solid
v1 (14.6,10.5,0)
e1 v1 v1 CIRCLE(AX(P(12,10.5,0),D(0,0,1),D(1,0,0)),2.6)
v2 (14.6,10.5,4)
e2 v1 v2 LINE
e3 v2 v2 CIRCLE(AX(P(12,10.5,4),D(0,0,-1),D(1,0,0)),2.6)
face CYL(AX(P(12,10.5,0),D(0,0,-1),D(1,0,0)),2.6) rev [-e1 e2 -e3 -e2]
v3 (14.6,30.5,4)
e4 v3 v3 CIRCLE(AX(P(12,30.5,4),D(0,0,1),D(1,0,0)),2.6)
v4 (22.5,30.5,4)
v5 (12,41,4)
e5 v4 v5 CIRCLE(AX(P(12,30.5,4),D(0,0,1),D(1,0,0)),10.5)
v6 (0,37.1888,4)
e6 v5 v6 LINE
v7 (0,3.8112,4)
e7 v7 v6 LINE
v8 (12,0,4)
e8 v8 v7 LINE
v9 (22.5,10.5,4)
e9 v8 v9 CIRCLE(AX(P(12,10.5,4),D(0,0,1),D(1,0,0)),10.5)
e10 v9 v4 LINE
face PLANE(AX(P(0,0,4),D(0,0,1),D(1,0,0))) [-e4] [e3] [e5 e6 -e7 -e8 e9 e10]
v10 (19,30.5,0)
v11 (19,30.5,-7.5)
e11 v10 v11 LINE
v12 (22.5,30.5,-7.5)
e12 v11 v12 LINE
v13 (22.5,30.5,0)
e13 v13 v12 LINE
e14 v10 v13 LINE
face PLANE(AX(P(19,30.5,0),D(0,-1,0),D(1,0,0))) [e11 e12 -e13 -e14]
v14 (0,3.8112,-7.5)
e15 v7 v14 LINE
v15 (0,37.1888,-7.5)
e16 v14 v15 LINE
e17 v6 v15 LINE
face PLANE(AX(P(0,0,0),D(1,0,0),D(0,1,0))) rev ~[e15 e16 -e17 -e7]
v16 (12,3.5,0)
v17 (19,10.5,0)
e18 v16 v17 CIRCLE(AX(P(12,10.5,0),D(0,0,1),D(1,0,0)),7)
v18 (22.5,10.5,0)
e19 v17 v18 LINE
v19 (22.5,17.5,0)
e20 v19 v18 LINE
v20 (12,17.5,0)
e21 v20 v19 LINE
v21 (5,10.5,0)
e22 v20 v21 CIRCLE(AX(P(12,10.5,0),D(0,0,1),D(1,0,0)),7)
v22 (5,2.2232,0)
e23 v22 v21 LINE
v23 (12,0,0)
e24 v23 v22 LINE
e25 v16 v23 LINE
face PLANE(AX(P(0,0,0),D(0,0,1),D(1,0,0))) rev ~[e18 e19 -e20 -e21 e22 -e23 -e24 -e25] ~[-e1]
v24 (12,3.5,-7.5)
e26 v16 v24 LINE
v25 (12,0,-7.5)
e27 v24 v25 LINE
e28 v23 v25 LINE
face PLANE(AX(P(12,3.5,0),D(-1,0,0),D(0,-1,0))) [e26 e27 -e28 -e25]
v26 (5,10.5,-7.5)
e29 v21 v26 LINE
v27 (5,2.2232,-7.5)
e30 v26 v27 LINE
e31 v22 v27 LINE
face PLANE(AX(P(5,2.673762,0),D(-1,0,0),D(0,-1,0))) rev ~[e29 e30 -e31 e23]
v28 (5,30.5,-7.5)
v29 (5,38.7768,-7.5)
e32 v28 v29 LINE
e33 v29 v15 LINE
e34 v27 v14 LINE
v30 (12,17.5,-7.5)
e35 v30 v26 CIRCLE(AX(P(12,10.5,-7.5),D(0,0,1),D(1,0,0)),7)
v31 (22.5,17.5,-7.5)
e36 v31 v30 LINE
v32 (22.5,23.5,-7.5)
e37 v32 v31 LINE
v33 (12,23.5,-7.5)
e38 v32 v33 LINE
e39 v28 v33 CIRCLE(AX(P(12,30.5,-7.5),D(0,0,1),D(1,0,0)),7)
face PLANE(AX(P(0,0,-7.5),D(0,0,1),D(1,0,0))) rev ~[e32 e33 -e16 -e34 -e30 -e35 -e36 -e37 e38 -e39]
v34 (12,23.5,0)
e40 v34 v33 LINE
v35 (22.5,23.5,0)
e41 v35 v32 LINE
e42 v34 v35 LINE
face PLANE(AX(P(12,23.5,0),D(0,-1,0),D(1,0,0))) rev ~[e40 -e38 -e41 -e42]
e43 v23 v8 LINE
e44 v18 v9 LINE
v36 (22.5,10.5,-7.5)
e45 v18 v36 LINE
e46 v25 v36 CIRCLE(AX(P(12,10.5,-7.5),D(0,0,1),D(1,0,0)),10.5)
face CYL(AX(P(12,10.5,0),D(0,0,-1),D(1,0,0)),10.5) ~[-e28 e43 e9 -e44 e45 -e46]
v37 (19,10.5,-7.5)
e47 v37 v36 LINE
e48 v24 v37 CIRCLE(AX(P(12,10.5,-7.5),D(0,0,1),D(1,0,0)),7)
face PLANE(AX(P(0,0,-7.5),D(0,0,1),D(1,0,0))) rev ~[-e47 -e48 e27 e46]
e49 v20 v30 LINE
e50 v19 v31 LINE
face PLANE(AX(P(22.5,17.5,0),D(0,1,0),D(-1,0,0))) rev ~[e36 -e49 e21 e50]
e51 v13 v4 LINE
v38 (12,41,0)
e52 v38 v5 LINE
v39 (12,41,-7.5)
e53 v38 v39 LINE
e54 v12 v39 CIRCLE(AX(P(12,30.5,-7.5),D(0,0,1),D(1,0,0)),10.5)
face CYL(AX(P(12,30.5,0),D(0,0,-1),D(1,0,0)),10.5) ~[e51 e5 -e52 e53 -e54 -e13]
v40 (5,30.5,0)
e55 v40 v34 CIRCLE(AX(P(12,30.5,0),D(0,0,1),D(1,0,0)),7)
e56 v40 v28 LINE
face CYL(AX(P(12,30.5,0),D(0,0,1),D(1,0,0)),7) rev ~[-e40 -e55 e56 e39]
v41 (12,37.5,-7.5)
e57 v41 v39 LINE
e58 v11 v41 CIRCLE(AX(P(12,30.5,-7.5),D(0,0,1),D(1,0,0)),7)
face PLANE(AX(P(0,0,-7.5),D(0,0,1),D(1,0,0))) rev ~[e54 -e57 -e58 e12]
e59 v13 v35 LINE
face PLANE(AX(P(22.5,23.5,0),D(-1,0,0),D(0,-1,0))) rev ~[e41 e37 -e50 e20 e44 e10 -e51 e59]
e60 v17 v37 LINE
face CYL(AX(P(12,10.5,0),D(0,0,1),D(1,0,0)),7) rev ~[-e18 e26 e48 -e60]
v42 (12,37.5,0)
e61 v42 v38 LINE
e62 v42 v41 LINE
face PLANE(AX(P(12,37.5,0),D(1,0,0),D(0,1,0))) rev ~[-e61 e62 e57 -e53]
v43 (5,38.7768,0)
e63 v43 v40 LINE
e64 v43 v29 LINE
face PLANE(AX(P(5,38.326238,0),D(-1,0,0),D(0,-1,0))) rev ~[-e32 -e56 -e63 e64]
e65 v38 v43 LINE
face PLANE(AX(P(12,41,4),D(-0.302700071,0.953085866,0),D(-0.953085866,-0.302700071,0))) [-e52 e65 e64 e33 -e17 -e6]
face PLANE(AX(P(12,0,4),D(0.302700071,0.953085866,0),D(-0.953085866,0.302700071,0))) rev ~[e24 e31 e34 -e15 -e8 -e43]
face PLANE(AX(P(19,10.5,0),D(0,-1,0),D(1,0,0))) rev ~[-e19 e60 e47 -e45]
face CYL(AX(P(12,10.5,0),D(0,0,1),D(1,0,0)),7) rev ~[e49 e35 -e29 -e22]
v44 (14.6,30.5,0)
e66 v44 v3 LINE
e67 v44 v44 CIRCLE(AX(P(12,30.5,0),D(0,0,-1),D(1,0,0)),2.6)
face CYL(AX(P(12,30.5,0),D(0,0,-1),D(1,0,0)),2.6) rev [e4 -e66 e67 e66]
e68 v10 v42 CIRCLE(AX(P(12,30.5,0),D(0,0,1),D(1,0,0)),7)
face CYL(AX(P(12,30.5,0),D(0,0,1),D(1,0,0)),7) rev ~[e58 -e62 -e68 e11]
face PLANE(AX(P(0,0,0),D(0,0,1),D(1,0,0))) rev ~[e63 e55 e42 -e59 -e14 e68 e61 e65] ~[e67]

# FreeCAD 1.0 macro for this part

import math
import FreeCAD as App
import Part
import Sketcher
from FreeCAD import Vector
Q = App.Units.Quantity


def add_polygon(sketch, points):
    """Adds a closed chain of lines whose ends are joined by coincident constraints."""
    first, n = sketch.GeometryCount, len(points)
    for a, b in zip(points, points[1:] + points[:1]):
        sketch.addGeometry(Part.LineSegment(App.Vector(*a, 0), App.Vector(*b, 0)), False)
    for i in range(n):
        sketch.addConstraint(Sketcher.Constraint("Coincident", first + i, 2, first + (i + 1) % n, 1))

doc = App.newDocument("Part")
body = doc.addObject("PartDesign::Body", "Body")
body.AllowCompound = True

# Sketch on XY plane
sketch1 = body.newObject("Sketcher::SketchObject", "Sketch")
sketch1.AttachmentSupport = (doc.getObject("XY_Plane"), [""])
sketch1.MapMode = "FlatFace"
sketch1.addGeometry([
    Part.ArcOfCircle(Part.Circle(Vector(12, 30.5, 0), Vector(0, 0, 1), 7), math.radians(0), math.radians(90)),  # 0
    Part.LineSegment(Vector(19, 30.5, 0), Vector(22.5, 30.5, 0)),  # 1
    Part.ArcOfCircle(Part.Circle(Vector(12, 30.5, 0), Vector(0, 0, 1), 10.5), math.radians(0), math.radians(90)),  # 2
    Part.LineSegment(Vector(12, 41, 0), Vector(12, 37.5, 0)),  # 3
    Part.ArcOfCircle(Part.Circle(Vector(12, 30.5, 0), Vector(0, 0, 1), 7), math.radians(180), math.radians(270)),  # 4
    Part.LineSegment(Vector(5, 30.5, 0), Vector(5, 41, 0)),  # 5
    Part.LineSegment(Vector(5, 41, 0), Vector(0, 41, 0)),  # 6
    Part.LineSegment(Vector(0, 41, 0), Vector(0, 0, 0)),  # 7
    Part.LineSegment(Vector(0, 0, 0), Vector(5, 0, 0)),  # 8
    Part.LineSegment(Vector(5, 0, 0), Vector(5, 10.5, 0)),  # 9
    Part.ArcOfCircle(Part.Circle(Vector(12, 10.5, 0), Vector(0, 0, 1), 7), math.radians(90), math.radians(180)),  # 10
    Part.LineSegment(Vector(12, 17.5, 0), Vector(22.5, 17.5, 0)),  # 11
    Part.LineSegment(Vector(22.5, 17.5, 0), Vector(22.5, 23.5, 0)),  # 12
    Part.LineSegment(Vector(22.5, 23.5, 0), Vector(12, 23.5, 0)),  # 13
    Part.ArcOfCircle(Part.Circle(Vector(12, 10.5, 0), Vector(0, 0, 1), 10.5), math.radians(-90), math.radians(0)),  # 14
    Part.LineSegment(Vector(22.5, 10.5, 0), Vector(19, 10.5, 0)),  # 15
    Part.ArcOfCircle(Part.Circle(Vector(12, 10.5, 0), Vector(0, 0, 1), 7), math.radians(-90), math.radians(0)),  # 16
    Part.LineSegment(Vector(12, 3.5, 0), Vector(12, 0, 0)),  # 17
], False)
sketch1.addConstraint([
    Sketcher.Constraint("Coincident", 0, 1, 1, 1),
    Sketcher.Constraint("Coincident", 1, 2, 2, 1),
    Sketcher.Constraint("Coincident", 2, 2, 3, 1),
    Sketcher.Constraint("Coincident", 3, 2, 0, 2),
    Sketcher.Constraint("Tangent", 4, 1, 5, 1),
    Sketcher.Constraint("Coincident", 5, 2, 6, 1),
    Sketcher.Constraint("Coincident", 6, 2, 7, 1),
    Sketcher.Constraint("Coincident", 7, 2, 8, 1),
    Sketcher.Constraint("Coincident", 8, 2, 9, 1),
    Sketcher.Constraint("Tangent", 9, 2, 10, 2),
    Sketcher.Constraint("Tangent", 10, 1, 11, 1),
    Sketcher.Constraint("Coincident", 11, 2, 12, 1),
    Sketcher.Constraint("Coincident", 12, 2, 13, 1),
    Sketcher.Constraint("Tangent", 13, 2, 4, 2),
    Sketcher.Constraint("Coincident", 14, 2, 15, 1),
    Sketcher.Constraint("Coincident", 15, 2, 16, 2),
    Sketcher.Constraint("Coincident", 16, 1, 17, 1),
    Sketcher.Constraint("Coincident", 17, 2, 14, 1),
    Sketcher.Constraint("Horizontal", 1),
    Sketcher.Constraint("Vertical", 3),
    Sketcher.Constraint("Vertical", 5),
    Sketcher.Constraint("Horizontal", 6),
    Sketcher.Constraint("Vertical", 7),
    Sketcher.Constraint("Horizontal", 8),
    Sketcher.Constraint("Vertical", 9),
    Sketcher.Constraint("Horizontal", 11),
    Sketcher.Constraint("Vertical", 12),
    Sketcher.Constraint("Horizontal", 13),
    Sketcher.Constraint("Horizontal", 15),
    Sketcher.Constraint("Vertical", 17),
    Sketcher.Constraint("Coincident", 7, 2, -1, 1),
    Sketcher.Constraint("Coincident", 2, 3, 0, 3),
    Sketcher.Constraint("Coincident", 4, 3, 0, 3),
    Sketcher.Constraint("Coincident", 14, 3, 10, 3),
    Sketcher.Constraint("Coincident", 16, 3, 10, 3),
    Sketcher.Constraint("Equal", 0, 4),
    Sketcher.Constraint("Equal", 4, 10),
    Sketcher.Constraint("Equal", 2, 14),
    Sketcher.Constraint("Equal", 10, 16),
    Sketcher.Constraint("PointOnObject", 17, 2, -1),
    Sketcher.Constraint("Horizontal", 4, 3, 0, 1),
    Sketcher.Constraint("Horizontal", 2, 2, 5, 2),
    Sketcher.Constraint("Horizontal", 9, 2, 14, 2),
    Sketcher.Constraint("Vertical", 4, 3, 10, 3),
    Sketcher.Constraint("Vertical", 16, 3, 2, 2),
    Sketcher.Constraint("Vertical", 1, 2, 11, 2),
    Sketcher.Constraint("Vertical", 13, 2, 16, 1),
    Sketcher.Constraint("Radius", 0, Q("7 mm")),
    Sketcher.Constraint("DistanceX", 6, 2, 6, 1, Q("5 mm")),
    Sketcher.Constraint("DistanceX", 1, 1, 1, 2, Q("3.5 mm")),
    Sketcher.Constraint("DistanceY", 10, 3, 0, 3, Q("20 mm")),
])
pad1 = body.newObject("PartDesign::Pad", "Pad")
pad1.Profile = sketch1
pad1.Length = 7.5
pad1.Reversed = True

# Sketch on XY plane
sketch2 = body.newObject("Sketcher::SketchObject", "Sketch001")
sketch2.AttachmentSupport = (doc.getObject("XY_Plane"), [""])
sketch2.MapMode = "FlatFace"
sketch2.addGeometry([
    Part.ArcOfCircle(Part.Circle(Vector(12, 30.5, 0), Vector(0, 0, 1), 10.5), math.radians(0), math.radians(90)),  # 0
    Part.LineSegment(Vector(12, 41, 0), Vector(0, 41, 0)),  # 1
    Part.LineSegment(Vector(0, 41, 0), Vector(0, 0, 0)),  # 2
    Part.LineSegment(Vector(0, 0, 0), Vector(12, 0, 0)),  # 3
    Part.ArcOfCircle(Part.Circle(Vector(12, 10.5, 0), Vector(0, 0, 1), 10.5), math.radians(-90), math.radians(0)),  # 4
    Part.LineSegment(Vector(22.5, 10.5, 0), Vector(22.5, 30.5, 0)),  # 5
    Part.Circle(Vector(12, 30.5, 0), Vector(0, 0, 1), 2.6),  # 6
    Part.Circle(Vector(12, 10.5, 0), Vector(0, 0, 1), 2.6),  # 7
], False)
sketch2.addConstraint([
    Sketcher.Constraint("Tangent", 0, 2, 1, 1),
    Sketcher.Constraint("Coincident", 1, 2, 2, 1),
    Sketcher.Constraint("Coincident", 2, 2, 3, 1),
    Sketcher.Constraint("Tangent", 3, 2, 4, 1),
    Sketcher.Constraint("Tangent", 4, 2, 5, 1),
    Sketcher.Constraint("Tangent", 5, 2, 0, 1),
    Sketcher.Constraint("Horizontal", 1),
    Sketcher.Constraint("Vertical", 2),
    Sketcher.Constraint("Horizontal", 3),
    Sketcher.Constraint("Vertical", 5),
    Sketcher.Constraint("Coincident", 2, 2, -1, 1),
    Sketcher.Constraint("Coincident", 6, 3, 0, 3),
    Sketcher.Constraint("Coincident", 7, 3, 4, 3),
    Sketcher.Constraint("Equal", 0, 4),
    Sketcher.Constraint("Equal", 6, 7),
    Sketcher.Constraint("Diameter", 6, Q("5.2 mm")),
    Sketcher.Constraint("DistanceY", 5, 1, 5, 2, Q("20 mm")),
    Sketcher.Constraint("Radius", 0, Q("10.5 mm")),
    Sketcher.Constraint("DistanceX", 1, 2, 1, 1, Q("12 mm")),
])
pad2 = body.newObject("PartDesign::Pad", "Pad001")
pad2.Profile = sketch2
pad2.Length = 4

# Sketch on XY plane
sketch3 = body.newObject("Sketcher::SketchObject", "Sketch002")
sketch3.AttachmentSupport = (doc.getObject("XY_Plane"), [""])
sketch3.MapMode = "FlatFace"
sketch3.AttachmentOffset = App.Placement(Vector(0, 0, 4), App.Rotation())
add_polygon(sketch3, [(0, 37.2), (12, 41), (0, 41)])  # lines 0-2
add_polygon(sketch3, [(12, 0), (0, 3.8), (0, 0)])  # lines 3-5
sketch3.addConstraint([
    Sketcher.Constraint("Horizontal", 1),
    Sketcher.Constraint("Vertical", 2),
    Sketcher.Constraint("Vertical", 4),
    Sketcher.Constraint("Horizontal", 5),
    Sketcher.Constraint("Coincident", 4, 2, -1, 1),
    Sketcher.Constraint("PointOnObject", 1, 2, -2),
    Sketcher.Constraint("Vertical", 0, 2, 5, 2),
    Sketcher.Constraint("Equal", 2, 4),
    Sketcher.Constraint("Angle", 0, Q("17.6198 deg")),
    Sketcher.Constraint("DistanceX", 1, 2, 1, 1, Q("12 mm")),
    Sketcher.Constraint("DistanceY", -1, 1, 0, 2, Q("41 mm")),
])
pocket1 = body.newObject("PartDesign::Pocket", "Pocket")
pocket1.Profile = sketch3
pocket1.Type = "ThroughAll"

doc.recompute()
